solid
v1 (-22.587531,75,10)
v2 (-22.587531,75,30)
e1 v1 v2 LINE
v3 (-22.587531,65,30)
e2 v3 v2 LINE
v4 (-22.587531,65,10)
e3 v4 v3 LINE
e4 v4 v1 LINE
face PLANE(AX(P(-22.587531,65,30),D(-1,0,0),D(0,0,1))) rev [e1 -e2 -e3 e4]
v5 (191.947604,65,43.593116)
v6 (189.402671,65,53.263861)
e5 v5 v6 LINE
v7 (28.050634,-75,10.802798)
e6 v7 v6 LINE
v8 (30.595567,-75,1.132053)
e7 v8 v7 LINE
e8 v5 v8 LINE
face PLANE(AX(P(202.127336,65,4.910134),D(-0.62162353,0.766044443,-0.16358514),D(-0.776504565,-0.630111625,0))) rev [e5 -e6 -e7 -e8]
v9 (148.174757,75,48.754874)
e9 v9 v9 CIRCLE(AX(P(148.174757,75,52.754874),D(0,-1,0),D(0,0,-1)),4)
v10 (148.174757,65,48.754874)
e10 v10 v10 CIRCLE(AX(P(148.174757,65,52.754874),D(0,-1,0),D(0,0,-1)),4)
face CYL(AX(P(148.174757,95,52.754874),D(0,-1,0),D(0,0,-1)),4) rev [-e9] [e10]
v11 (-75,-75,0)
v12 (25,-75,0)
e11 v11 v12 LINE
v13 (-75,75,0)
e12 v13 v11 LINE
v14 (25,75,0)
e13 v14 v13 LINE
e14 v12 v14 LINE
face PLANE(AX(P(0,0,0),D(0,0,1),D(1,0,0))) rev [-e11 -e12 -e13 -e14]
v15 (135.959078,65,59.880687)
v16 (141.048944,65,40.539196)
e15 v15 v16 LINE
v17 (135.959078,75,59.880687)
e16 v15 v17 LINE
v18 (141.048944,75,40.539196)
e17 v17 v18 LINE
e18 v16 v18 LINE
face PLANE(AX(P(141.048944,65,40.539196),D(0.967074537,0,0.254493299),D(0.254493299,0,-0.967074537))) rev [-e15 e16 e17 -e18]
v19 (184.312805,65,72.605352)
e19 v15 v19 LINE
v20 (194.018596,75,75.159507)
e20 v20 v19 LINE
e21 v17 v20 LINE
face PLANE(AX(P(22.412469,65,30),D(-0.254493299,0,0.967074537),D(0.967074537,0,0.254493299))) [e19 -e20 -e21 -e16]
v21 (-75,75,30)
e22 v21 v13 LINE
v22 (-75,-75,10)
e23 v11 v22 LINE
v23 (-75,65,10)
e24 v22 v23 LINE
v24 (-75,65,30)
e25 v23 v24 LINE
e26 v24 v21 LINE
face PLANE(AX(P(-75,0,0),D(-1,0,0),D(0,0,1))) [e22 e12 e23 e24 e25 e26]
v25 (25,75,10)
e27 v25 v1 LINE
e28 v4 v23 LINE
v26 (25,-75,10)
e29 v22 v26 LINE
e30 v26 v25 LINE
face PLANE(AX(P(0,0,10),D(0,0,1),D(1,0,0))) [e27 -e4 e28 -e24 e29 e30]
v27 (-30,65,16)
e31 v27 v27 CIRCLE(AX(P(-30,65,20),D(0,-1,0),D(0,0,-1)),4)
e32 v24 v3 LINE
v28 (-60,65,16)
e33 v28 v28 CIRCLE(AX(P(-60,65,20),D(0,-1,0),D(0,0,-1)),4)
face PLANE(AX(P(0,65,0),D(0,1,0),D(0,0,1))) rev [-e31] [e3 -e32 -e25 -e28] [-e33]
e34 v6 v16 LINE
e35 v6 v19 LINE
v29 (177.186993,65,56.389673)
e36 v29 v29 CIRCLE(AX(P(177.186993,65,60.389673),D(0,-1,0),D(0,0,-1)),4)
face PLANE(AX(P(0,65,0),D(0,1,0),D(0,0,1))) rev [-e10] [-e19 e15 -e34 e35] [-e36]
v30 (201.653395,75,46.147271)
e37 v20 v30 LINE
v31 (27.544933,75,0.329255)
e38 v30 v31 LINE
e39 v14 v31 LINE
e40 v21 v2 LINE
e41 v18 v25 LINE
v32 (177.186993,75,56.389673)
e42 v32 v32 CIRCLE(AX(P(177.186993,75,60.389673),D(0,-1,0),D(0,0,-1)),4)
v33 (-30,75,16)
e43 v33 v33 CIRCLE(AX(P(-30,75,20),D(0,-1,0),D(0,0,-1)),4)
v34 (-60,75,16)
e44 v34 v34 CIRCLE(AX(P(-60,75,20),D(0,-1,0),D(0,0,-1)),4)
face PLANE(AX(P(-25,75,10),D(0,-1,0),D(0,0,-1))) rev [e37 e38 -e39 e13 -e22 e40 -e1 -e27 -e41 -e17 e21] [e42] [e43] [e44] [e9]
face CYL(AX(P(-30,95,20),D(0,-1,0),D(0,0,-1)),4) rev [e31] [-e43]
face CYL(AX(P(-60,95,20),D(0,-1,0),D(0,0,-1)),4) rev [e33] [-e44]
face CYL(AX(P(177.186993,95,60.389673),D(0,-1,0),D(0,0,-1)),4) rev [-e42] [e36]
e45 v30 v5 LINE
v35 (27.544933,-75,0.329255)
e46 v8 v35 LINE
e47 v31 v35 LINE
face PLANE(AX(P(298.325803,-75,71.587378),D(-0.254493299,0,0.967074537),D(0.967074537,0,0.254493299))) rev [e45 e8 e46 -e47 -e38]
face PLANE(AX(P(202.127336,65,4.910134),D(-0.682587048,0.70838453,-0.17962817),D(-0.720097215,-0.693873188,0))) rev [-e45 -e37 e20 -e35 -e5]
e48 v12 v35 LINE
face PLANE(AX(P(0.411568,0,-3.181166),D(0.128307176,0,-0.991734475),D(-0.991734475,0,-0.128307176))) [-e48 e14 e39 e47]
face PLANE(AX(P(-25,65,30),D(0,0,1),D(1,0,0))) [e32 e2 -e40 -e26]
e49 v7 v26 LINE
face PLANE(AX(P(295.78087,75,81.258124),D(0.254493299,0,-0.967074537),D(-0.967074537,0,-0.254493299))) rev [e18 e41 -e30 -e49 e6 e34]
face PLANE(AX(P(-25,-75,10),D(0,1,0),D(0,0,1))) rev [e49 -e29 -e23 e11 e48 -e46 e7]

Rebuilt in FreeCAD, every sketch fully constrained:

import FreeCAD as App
import Part
import Sketcher
from FreeCAD import Vector
Q = App.Units.Quantity


def add_polygon(sketch, points):
    """Adds a closed chain of lines whose ends are joined by coincident constraints."""
    first, n = sketch.GeometryCount, len(points)
    for a, b in zip(points, points[1:] + points[:1]):
        sketch.addGeometry(Part.LineSegment(App.Vector(*a, 0), App.Vector(*b, 0)), False)
    for i in range(n):
        sketch.addConstraint(Sketcher.Constraint("Coincident", first + i, 2, first + (i + 1) % n, 1))

doc = App.newDocument("Part")
body = doc.addObject("PartDesign::Body", "Body")

# Sketch on XY plane
sketch1 = body.newObject("Sketcher::SketchObject", "Sketch")
sketch1.AttachmentSupport = (doc.getObject("XY_Plane"), [""])
sketch1.MapMode = "FlatFace"
add_polygon(sketch1, [(-25, 75), (-25, -75), (25, -75), (25, 75)])  # lines 0-3
sketch1.addConstraint([
    Sketcher.Constraint("Vertical", 0),
    Sketcher.Constraint("Horizontal", 1),
    Sketcher.Constraint("Vertical", 2),
    Sketcher.Constraint("Horizontal", 3),
    Sketcher.Constraint("Symmetric", 0, 2, 2, 2, -1, 1),
    Sketcher.Constraint("DistanceX", 1, 1, 1, 2, Q("50 mm")),
    Sketcher.Constraint("DistanceY", 0, 2, 0, 1, Q("150 mm")),
])
pad1 = body.newObject("PartDesign::Pad", "Pad")
pad1.Profile = sketch1
pad1.Length = 10
body2 = doc.addObject("PartDesign::Body", "Body001")

# Sketch on an angled plane
sketch2 = body2.newObject("Sketcher::SketchObject", "Sketch001")
sketch2.Placement = App.Placement(Vector(25, 75, 10), App.Rotation(Vector(0.254493299, 0, -0.967074537), Vector(0, 0.999999999, 0), Vector(0.967074537, 0, 0.254493299), "ZXY"))
add_polygon(sketch2, [(0, 0), (0, -150), (10, -150), (10, 0)])  # lines 0-3
sketch2.addConstraint([
    Sketcher.Constraint("Vertical", 0),
    Sketcher.Constraint("Horizontal", 1),
    Sketcher.Constraint("Vertical", 2),
    Sketcher.Constraint("Horizontal", 3),
    Sketcher.Constraint("Coincident", 3, 2, -1, 1),
    Sketcher.Constraint("DistanceX", 1, 1, 1, 2, Q("10 mm")),
    Sketcher.Constraint("DistanceY", 0, 2, 0, 1, Q("150 mm")),
])
pad2 = body2.newObject("PartDesign::Pad", "Pad001")
pad2.Profile = sketch2
pad2.Length = 280
body.AllowCompound = True
doc.recompute()

boolean = body.newObject("PartDesign::Boolean", "Boolean")
boolean.Type = "Fuse"
boolean.addObjects([body2])

# Sketch on YZ plane
sketch3 = body.newObject("Sketcher::SketchObject", "Sketch002")
sketch3.AttachmentSupport = (doc.getObject("YZ_Plane"), [""])
sketch3.MapMode = "FlatFace"
sketch3.AttachmentOffset = App.Placement(Vector(0, 0, 25), App.Rotation())
add_polygon(sketch3, [(75, 0), (75, 10), (-75, 10), (-75, 0)])  # lines 0-3
sketch3.addConstraint([
    Sketcher.Constraint("Vertical", 0),
    Sketcher.Constraint("Horizontal", 1),
    Sketcher.Constraint("Vertical", 2),
    Sketcher.Constraint("Horizontal", 3),
    Sketcher.Constraint("Symmetric", 2, 2, 3, 2, -1, 1),
    Sketcher.Constraint("DistanceX", 1, 2, 1, 1, Q("150 mm")),
    Sketcher.Constraint("DistanceY", 0, 1, 0, 2, Q("10 mm")),
])

# Sketch on an angled plane
sketch4 = body.newObject("Sketcher::SketchObject", "Sketch003")
sketch4.Placement = App.Placement(Vector(25.841969, 0, 6.800518), App.Rotation(Vector(-0.254493299, 0, 0.967074537), Vector(0, 0.999999999, 0), Vector(-0.967074537, 0, -0.254493299), "ZXY"))
add_polygon(sketch4, [(3, 75), (-7, 75), (-7, -75), (3, -75)])  # lines 0-3
sketch4.addConstraint([
    Sketcher.Constraint("Horizontal", 0),
    Sketcher.Constraint("Vertical", 1),
    Sketcher.Constraint("Horizontal", 2),
    Sketcher.Constraint("Vertical", 3),
    Sketcher.Constraint("DistanceX", 0, 2, 0, 1, Q("10 mm")),
    Sketcher.Constraint("DistanceY", 1, 2, 1, 1, Q("150 mm")),
    Sketcher.Constraint("DistanceY", -1, 1, 0, 2, Q("75 mm")),
    Sketcher.Constraint("DistanceX", 0, 2, -1, 1, Q("6.691587 mm")),
])

additiveloft = body.newObject("PartDesign::AdditiveLoft", "AdditiveLoft")
additiveloft.Profile = sketch3
additiveloft.Sections = [sketch4]

# Sketch on XZ plane
sketch5 = body.newObject("Sketcher::SketchObject", "Sketch004")
sketch5.AttachmentSupport = (doc.getObject("XZ_Plane"), [""])
sketch5.MapMode = "FlatFace"
sketch5.AttachmentOffset = App.Placement(Vector(0, 0, -75), App.Rotation())
add_polygon(sketch5, [(296, 81), (25, 10), (-25, 10), (-25, 30), (22, 30), (291, 101)])  # lines 0-5
sketch5.addConstraint([
    Sketcher.Constraint("Horizontal", 1),
    Sketcher.Constraint("Vertical", 2),
    Sketcher.Constraint("Horizontal", 3),
    Sketcher.Constraint("Parallel", 0, 4),
    Sketcher.Constraint("Perpendicular", 4, 5),
    Sketcher.Constraint("DistanceX", 1, 2, 1, 1, Q("50 mm")),
    Sketcher.Constraint("DistanceY", 2, 1, 2, 2, Q("20 mm")),
    Sketcher.Constraint("Distance", 0, Q("280 mm")),
    Sketcher.Constraint("Distance", 5, Q("20 mm")),
    Sketcher.Constraint("DistanceX", -1, 1, 0, 2, Q("25 mm")),
    Sketcher.Constraint("DistanceY", -1, 1, 0, 2, Q("10 mm")),
    Sketcher.Constraint("DistanceX", 3, 1, 3, 2, Q("47.412469 mm")),
])
pad3 = body.newObject("PartDesign::Pad", "Pad002")
pad3.Profile = sketch5
pad3.Length = 10

# Sketch on an angled plane
sketch6 = body.newObject("Sketcher::SketchObject", "Sketch005")
sketch6.Placement = App.Placement(Vector(-0.841969, 0, 3.199482), App.Rotation(Vector(0.967074537, 0, 0.254493299), Vector(0, 0.999999999, 0), Vector(-0.254493299, 0, 0.967074537), "ZXY"))
add_polygon(sketch6, [(27, -78), (-24, -75), (28, -109), (85, -109), (350, -102), (393, 75), (354, 82), (253, 121), (197, 65)])  # lines 0-8
sketch6.addConstraint([
    Sketcher.Constraint("Horizontal", 2),
    Sketcher.Constraint("Angle", 8, Q("-140 deg")),
    Sketcher.Constraint("DistanceY", 0, 2, -1, 1, Q("75 mm")),
    Sketcher.Constraint("DistanceY", -1, 1, 7, 2, Q("65 mm")),
    Sketcher.Constraint("DistanceX", 8, 2, 7, 2, Q("170 mm")),
    Sketcher.Constraint("Distance", 0, Q("50.967439 mm")),
    Sketcher.Constraint("Distance", 1, Q("62.068029 mm")),
    Sketcher.Constraint("DistanceX", 2, 1, 2, 2, Q("57.181616 mm")),
    Sketcher.Constraint("DistanceX", -1, 1, 1, 2, Q("27.635712 mm")),
    Sketcher.Constraint("DistanceY", 1, 2, -1, 1, Q("109.174512 mm")),
    Sketcher.Constraint("DistanceY", 3, 2, -1, 1, Q("101.880938 mm")),
    Sketcher.Constraint("DistanceY", -1, 1, 4, 2, Q("75.498769 mm")),
    Sketcher.Constraint("DistanceX", -1, 1, 5, 2, Q("354.48924 mm")),
    Sketcher.Constraint("DistanceX", 1, 2, 3, 2, Q("322.667692 mm")),
    Sketcher.Constraint("DistanceX", 2, 2, 4, 2, Q("308.633059 mm")),
    Sketcher.Constraint("DistanceY", 2, 2, 5, 2, Q("190.748349 mm")),
    Sketcher.Constraint("DistanceX", 6, 2, 4, 2, Q("140.22324 mm")),
    Sketcher.Constraint("DistanceY", 3, 2, 6, 2, Q("223.182262 mm")),
])
pocket1 = body.newObject("PartDesign::Pocket", "Pocket")
pocket1.Profile = sketch6
pocket1.Length = 100
pocket1.Midplane = True

# Sketch on YZ plane
sketch7 = body.newObject("Sketcher::SketchObject", "Sketch006")
sketch7.AttachmentSupport = (doc.getObject("YZ_Plane"), [""])
sketch7.MapMode = "FlatFace"
sketch7.AttachmentOffset = App.Placement(Vector(0, 0, -25), App.Rotation())
add_polygon(sketch7, [(75, 0), (-75, 0), (-75, 10), (65, 10), (65, 30), (75, 30)])  # lines 0-5
sketch7.addConstraint([
    Sketcher.Constraint("Horizontal", 0),
    Sketcher.Constraint("Vertical", 1),
    Sketcher.Constraint("Horizontal", 2),
    Sketcher.Constraint("Vertical", 3),
    Sketcher.Constraint("Horizontal", 4),
    Sketcher.Constraint("Vertical", 5),
    Sketcher.Constraint("Symmetric", 0, 2, 5, 2, -1, 1),
    Sketcher.Constraint("Equal", 4, 1),
    Sketcher.Constraint("DistanceX", 0, 2, 0, 1, Q("150 mm")),
    Sketcher.Constraint("DistanceX", 2, 1, 2, 2, Q("140 mm")),
    Sketcher.Constraint("DistanceY", 3, 1, 3, 2, Q("20 mm")),
])
pad4 = body.newObject("PartDesign::Pad", "Pad003")
pad4.Profile = sketch7
pad4.Length = 50
pad4.Reversed = True

# Sketch on XZ plane
sketch8 = body.newObject("Sketcher::SketchObject", "Sketch007")
sketch8.AttachmentSupport = (doc.getObject("XZ_Plane"), [""])
sketch8.MapMode = "FlatFace"
sketch8.AttachmentOffset = App.Placement(Vector(0, 0, -65), App.Rotation())
sketch8.addGeometry([
    Part.Circle(Vector(-60, 20, 0), Vector(0, 0, 1), 4),
    Part.Circle(Vector(177.2, 60.4, 0), Vector(0, 0, 1), 4),
    Part.Circle(Vector(148.2, 52.8, 0), Vector(0, 0, 1), 4),
    Part.Circle(Vector(-30, 20, 0), Vector(0, 0, 1), 4),
], False)
sketch8.addConstraint([
    Sketcher.Constraint("Equal", 0, 1),
    Sketcher.Constraint("Equal", 1, 2),
    Sketcher.Constraint("Equal", 2, 3),
    Sketcher.Constraint("Horizontal", 0, 3, 3, 3),
    Sketcher.Constraint("Diameter", 0, Q("8 mm")),
    Sketcher.Constraint("DistanceX", 0, 3, -1, 1, Q("60 mm")),
    Sketcher.Constraint("DistanceY", -1, 1, 0, 3, Q("20 mm")),
    Sketcher.Constraint("DistanceX", 3, 3, -1, 1, Q("30 mm")),
    Sketcher.Constraint("DistanceY", 2, 3, 1, 3, Q("7.634799 mm")),
    Sketcher.Constraint("DistanceX", -1, 1, 1, 3, Q("177.186993 mm")),
    Sketcher.Constraint("DistanceY", -1, 1, 1, 3, Q("60.389673 mm")),
    Sketcher.Constraint("DistanceX", -1, 1, 2, 3, Q("148.174757 mm")),
])
pocket2 = body.newObject("PartDesign::Pocket", "Pocket001")
pocket2.Profile = sketch8
pocket2.Length = 30

# Sketch on XZ plane
sketch9 = body.newObject("Sketcher::SketchObject", "Sketch008")
sketch9.AttachmentSupport = (doc.getObject("XZ_Plane"), [""])
sketch9.MapMode = "FlatFace"
sketch9.AttachmentOffset = App.Placement(Vector(0, 0, -75), App.Rotation())
add_polygon(sketch9, [(-23, 10), (-23, 30), (22, 30), (136, 60), (141, 41), (25, 10)])  # lines 0-5
sketch9.addConstraint([
    Sketcher.Constraint("Vertical", 0),
    Sketcher.Constraint("Horizontal", 1),
    Sketcher.Constraint("Horizontal", 5),
    Sketcher.Constraint("Perpendicular", 2, 3),
    Sketcher.Constraint("Perpendicular", 3, 4),
    Sketcher.Constraint("DistanceX", 1, 1, 1, 2, Q("45 mm")),
    Sketcher.Constraint("DistanceY", 0, 1, 0, 2, Q("20 mm")),
    Sketcher.Constraint("Distance", 3, Q("20 mm")),
    Sketcher.Constraint("Distance", 4, Q("120 mm")),
    Sketcher.Constraint("DistanceY", -1, 1, 0, 2, Q("30 mm")),
    Sketcher.Constraint("DistanceX", -1, 1, 4, 2, Q("25 mm")),
    Sketcher.Constraint("DistanceX", 5, 2, 5, 1, Q("47.587531 mm")),
])
pocket3 = body.newObject("PartDesign::Pocket", "Pocket002")
pocket3.Profile = sketch9
pocket3.Length = 10
pocket3.Reversed = True

doc.recompute()
